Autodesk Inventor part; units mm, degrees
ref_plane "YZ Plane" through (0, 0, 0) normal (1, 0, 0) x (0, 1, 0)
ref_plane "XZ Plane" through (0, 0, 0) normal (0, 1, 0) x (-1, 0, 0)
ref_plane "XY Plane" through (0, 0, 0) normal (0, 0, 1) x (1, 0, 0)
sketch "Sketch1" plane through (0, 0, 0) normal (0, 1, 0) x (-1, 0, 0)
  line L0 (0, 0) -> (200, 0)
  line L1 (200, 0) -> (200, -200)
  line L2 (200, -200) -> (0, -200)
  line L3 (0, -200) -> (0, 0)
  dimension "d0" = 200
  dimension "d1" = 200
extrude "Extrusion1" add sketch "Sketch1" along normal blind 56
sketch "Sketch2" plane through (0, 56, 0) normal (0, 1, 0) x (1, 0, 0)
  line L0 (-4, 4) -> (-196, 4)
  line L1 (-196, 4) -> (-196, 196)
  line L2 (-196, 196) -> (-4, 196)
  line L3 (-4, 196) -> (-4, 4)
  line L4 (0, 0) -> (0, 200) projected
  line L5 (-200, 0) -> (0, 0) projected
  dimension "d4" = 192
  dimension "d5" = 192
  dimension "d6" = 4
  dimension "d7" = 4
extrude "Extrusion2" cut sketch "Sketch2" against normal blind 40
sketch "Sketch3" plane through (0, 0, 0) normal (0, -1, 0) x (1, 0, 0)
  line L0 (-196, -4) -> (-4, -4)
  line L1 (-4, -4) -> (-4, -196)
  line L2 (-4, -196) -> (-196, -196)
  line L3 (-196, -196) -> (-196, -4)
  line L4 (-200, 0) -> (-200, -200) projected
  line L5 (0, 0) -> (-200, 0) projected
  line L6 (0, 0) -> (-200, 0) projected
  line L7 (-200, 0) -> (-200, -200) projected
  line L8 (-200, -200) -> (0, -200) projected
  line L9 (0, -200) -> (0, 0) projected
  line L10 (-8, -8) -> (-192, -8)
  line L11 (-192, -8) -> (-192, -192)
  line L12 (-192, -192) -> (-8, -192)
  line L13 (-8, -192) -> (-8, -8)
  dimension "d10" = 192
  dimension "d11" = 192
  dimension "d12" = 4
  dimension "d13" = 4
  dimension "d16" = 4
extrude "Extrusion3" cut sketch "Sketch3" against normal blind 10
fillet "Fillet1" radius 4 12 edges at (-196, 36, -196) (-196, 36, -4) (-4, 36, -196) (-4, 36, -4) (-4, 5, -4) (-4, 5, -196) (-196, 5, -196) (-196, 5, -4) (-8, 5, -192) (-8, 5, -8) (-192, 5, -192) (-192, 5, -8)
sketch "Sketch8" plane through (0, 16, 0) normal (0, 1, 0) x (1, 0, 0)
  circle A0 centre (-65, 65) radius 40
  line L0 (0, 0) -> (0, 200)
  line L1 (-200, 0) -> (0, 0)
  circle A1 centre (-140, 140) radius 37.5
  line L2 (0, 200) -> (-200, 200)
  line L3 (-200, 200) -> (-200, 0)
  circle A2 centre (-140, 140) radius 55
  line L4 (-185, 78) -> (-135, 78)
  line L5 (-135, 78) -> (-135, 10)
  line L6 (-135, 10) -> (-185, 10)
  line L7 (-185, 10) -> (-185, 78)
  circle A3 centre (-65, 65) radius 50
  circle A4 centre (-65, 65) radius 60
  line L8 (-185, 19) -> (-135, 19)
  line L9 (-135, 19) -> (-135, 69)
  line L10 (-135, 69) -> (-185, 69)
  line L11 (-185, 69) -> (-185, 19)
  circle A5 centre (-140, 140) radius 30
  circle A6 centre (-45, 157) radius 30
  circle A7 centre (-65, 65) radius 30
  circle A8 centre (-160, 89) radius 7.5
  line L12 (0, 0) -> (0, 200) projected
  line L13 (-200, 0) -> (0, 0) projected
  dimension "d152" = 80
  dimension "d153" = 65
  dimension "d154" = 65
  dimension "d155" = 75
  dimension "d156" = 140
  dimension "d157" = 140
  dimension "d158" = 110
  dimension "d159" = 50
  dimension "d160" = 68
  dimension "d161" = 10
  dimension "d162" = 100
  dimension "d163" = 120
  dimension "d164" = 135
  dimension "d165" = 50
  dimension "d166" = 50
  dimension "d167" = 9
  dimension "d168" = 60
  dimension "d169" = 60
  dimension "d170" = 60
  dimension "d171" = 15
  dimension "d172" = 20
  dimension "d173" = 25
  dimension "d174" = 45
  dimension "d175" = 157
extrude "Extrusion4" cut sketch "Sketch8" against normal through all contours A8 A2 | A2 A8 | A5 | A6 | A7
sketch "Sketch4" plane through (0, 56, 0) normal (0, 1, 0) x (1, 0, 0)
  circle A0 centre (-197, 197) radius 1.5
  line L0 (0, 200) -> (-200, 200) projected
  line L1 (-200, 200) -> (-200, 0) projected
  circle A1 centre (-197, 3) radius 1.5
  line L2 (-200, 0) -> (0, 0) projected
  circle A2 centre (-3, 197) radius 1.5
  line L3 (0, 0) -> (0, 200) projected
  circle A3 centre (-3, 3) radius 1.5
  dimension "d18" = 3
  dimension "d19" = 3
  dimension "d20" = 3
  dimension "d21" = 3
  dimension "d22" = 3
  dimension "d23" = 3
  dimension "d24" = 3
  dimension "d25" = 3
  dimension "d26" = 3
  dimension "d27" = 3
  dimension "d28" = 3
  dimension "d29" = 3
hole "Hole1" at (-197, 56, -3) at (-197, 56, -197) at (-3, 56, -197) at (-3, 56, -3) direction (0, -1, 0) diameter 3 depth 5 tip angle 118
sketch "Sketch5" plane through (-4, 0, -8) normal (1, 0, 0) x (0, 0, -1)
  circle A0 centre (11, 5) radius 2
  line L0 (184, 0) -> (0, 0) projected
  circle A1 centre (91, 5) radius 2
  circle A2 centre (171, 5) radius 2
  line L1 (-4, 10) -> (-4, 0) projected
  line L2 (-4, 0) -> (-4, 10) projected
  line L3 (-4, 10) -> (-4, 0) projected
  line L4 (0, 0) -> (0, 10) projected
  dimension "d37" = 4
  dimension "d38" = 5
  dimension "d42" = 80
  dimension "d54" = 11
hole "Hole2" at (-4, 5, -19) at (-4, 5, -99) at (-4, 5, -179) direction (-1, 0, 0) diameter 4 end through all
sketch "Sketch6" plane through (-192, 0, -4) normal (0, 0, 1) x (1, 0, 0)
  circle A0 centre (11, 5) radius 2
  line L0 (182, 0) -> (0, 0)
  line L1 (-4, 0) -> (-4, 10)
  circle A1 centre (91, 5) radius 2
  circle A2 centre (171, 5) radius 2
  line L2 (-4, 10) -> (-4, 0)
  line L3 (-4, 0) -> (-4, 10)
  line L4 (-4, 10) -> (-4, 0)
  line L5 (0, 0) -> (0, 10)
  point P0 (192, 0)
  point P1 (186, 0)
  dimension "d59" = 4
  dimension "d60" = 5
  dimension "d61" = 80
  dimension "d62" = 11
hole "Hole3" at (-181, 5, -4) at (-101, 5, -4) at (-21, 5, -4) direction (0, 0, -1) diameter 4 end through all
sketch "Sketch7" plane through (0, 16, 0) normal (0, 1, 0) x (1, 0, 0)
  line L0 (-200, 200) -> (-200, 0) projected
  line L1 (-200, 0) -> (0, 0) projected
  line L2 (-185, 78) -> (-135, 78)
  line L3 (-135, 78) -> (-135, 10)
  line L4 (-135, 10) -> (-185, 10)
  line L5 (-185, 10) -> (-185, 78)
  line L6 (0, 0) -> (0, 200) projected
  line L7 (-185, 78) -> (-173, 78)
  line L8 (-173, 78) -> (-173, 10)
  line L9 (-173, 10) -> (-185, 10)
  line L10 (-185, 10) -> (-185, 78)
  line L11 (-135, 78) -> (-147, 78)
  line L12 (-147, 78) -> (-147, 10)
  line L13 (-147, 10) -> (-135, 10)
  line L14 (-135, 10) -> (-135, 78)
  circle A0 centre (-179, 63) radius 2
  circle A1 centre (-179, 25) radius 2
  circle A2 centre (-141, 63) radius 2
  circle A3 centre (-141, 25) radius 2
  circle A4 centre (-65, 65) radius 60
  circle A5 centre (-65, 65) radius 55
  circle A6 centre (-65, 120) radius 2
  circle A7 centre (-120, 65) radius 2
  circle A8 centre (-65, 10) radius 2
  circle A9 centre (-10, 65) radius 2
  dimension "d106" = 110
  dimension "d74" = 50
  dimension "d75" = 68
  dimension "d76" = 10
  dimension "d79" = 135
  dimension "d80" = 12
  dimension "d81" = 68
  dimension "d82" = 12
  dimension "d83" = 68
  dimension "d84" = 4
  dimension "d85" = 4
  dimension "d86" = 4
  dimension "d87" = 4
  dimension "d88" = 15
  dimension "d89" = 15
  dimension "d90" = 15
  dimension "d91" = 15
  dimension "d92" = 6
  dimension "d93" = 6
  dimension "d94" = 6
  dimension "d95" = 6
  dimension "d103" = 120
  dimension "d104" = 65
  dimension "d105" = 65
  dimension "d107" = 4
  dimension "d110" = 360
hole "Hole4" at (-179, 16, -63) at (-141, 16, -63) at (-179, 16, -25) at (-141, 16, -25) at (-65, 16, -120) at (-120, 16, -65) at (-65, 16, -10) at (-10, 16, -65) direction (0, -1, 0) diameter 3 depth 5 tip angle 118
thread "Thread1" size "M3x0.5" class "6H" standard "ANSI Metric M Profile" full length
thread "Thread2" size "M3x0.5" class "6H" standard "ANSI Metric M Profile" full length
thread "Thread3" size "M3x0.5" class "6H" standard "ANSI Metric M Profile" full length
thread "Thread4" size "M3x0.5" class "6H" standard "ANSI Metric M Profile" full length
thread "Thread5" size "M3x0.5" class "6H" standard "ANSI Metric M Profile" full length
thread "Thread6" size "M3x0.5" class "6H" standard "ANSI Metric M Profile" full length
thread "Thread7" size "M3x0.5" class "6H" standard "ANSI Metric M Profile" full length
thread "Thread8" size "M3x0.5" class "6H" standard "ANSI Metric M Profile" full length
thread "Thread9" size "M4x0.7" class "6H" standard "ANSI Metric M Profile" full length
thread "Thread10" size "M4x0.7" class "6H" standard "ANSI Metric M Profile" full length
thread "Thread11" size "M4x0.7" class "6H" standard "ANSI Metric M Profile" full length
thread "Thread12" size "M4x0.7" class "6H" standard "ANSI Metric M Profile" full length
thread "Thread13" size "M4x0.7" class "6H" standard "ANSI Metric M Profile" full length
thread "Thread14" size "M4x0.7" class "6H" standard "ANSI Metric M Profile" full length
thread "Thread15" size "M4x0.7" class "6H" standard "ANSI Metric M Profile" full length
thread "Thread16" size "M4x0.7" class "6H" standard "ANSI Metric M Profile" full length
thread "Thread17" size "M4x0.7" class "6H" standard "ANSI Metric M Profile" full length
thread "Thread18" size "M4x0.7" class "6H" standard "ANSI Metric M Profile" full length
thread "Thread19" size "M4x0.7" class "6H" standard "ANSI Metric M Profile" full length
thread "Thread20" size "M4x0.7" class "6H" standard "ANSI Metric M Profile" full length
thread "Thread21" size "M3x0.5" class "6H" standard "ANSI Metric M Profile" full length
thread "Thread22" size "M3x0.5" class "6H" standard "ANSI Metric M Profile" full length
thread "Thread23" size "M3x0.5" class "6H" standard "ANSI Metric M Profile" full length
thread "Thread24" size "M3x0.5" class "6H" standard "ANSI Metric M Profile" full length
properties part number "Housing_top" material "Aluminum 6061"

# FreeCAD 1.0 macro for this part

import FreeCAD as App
import Part
import Sketcher
from FreeCAD import Vector


def edges_at(feature, points):
    """Names of the edges that pass closest to the given points."""
    edges = feature.Shape.Edges
    near = lambda p: min(range(len(edges)), key=lambda i: edges[i].distToShape(Part.Vertex(*p))[0])
    return sorted({f"Edge{near(p) + 1}" for p in points})


def add_polygon(sketch, points):
    """Adds a closed chain of lines whose ends are joined by coincident constraints."""
    first, n = sketch.GeometryCount, len(points)
    for a, b in zip(points, points[1:] + points[:1]):
        sketch.addGeometry(Part.LineSegment(App.Vector(*a, 0), App.Vector(*b, 0)), False)
    for i in range(n):
        sketch.addConstraint(Sketcher.Constraint("Coincident", first + i, 2, first + (i + 1) % n, 1))

doc = App.newDocument("Part")
body = doc.addObject("PartDesign::Body", "Body")

# Sketch on XZ plane
sketch1 = body.newObject("Sketcher::SketchObject", "Sketch")
sketch1.AttachmentSupport = (doc.getObject("XZ_Plane"), [""])
sketch1.MapMode = "FlatFace"
add_polygon(sketch1, [(-200, 0), (0, 0), (0, -200), (-200, -200)])  # lines 0-3
sketch1.addConstraint(Sketcher.Constraint("Horizontal", 0))
sketch1.addConstraint(Sketcher.Constraint("Vertical", 1))
sketch1.addConstraint(Sketcher.Constraint("Horizontal", 2))
sketch1.addConstraint(Sketcher.Constraint("Vertical", 3))
sketch1.addConstraint(Sketcher.Constraint("Coincident", 0, 2, -1, 1))
sketch1.addConstraint(Sketcher.Constraint("Equal", 2, 1))
sketch1.addConstraint(Sketcher.Constraint("DistanceX", 0, 1, 0, 2, 200.0))
pad1 = body.newObject("PartDesign::Pad", "Pad")
pad1.Profile = sketch1
pad1.Length = 56
pad1.Reversed = True

# Sketch on XZ plane
sketch2 = body.newObject("Sketcher::SketchObject", "Sketch001")
sketch2.AttachmentSupport = (doc.getObject("XZ_Plane"), [""])
sketch2.MapMode = "FlatFace"
sketch2.AttachmentOffset = App.Placement(Vector(0, 0, -56), App.Rotation())
add_polygon(sketch2, [(-196, -4), (-4, -4), (-4, -196), (-196, -196)])  # lines 0-3
sketch2.addConstraint(Sketcher.Constraint("Horizontal", 0))
sketch2.addConstraint(Sketcher.Constraint("Vertical", 1))
sketch2.addConstraint(Sketcher.Constraint("Horizontal", 2))
sketch2.addConstraint(Sketcher.Constraint("Vertical", 3))
sketch2.addConstraint(Sketcher.Constraint("Equal", 2, 1))
sketch2.addConstraint(Sketcher.Constraint("DistanceX", 0, 1, 0, 2, 192.0))
sketch2.addConstraint(Sketcher.Constraint("DistanceX", 0, 2, -1, 1, 4.0))
sketch2.addConstraint(Sketcher.Constraint("DistanceY", 0, 2, -1, 1, 4.0))
pocket1 = body.newObject("PartDesign::Pocket", "Pocket")
pocket1.Profile = sketch2
pocket1.Length = 40
pocket1.Reversed = True

# Sketch on XZ plane
sketch3 = body.newObject("Sketcher::SketchObject", "Sketch002")
sketch3.AttachmentSupport = (doc.getObject("XZ_Plane"), [""])
sketch3.MapMode = "FlatFace"
add_polygon(sketch3, [(0, 0), (-200, 0), (-200, -200), (0, -200)])  # lines 0-3
add_polygon(sketch3, [(-196, -196), (-196, -4), (-4, -4), (-4, -196)])  # lines 4-7
add_polygon(sketch3, [(-8, -192), (-8, -8), (-192, -8), (-192, -192)])  # lines 8-11
sketch3.addConstraint(Sketcher.Constraint("Horizontal", 0))
sketch3.addConstraint(Sketcher.Constraint("Vertical", 1))
sketch3.addConstraint(Sketcher.Constraint("Horizontal", 2))
sketch3.addConstraint(Sketcher.Constraint("Vertical", 3))
sketch3.addConstraint(Sketcher.Constraint("Vertical", 4))
sketch3.addConstraint(Sketcher.Constraint("Horizontal", 5))
sketch3.addConstraint(Sketcher.Constraint("Vertical", 6))
sketch3.addConstraint(Sketcher.Constraint("Horizontal", 7))
sketch3.addConstraint(Sketcher.Constraint("Vertical", 8))
sketch3.addConstraint(Sketcher.Constraint("Horizontal", 9))
sketch3.addConstraint(Sketcher.Constraint("Vertical", 10))
sketch3.addConstraint(Sketcher.Constraint("Horizontal", 11))
sketch3.addConstraint(Sketcher.Constraint("Coincident", 3, 2, -1, 1))
sketch3.addConstraint(Sketcher.Constraint("Equal", 2, 1))
sketch3.addConstraint(Sketcher.Constraint("Equal", 7, 4))
sketch3.addConstraint(Sketcher.Constraint("Equal", 11, 8))
sketch3.addConstraint(Sketcher.Constraint("DistanceX", 5, 1, 5, 2, 192.0))
sketch3.addConstraint(Sketcher.Constraint("DistanceY", 4, 2, -1, 1, 4.0))
sketch3.addConstraint(Sketcher.Constraint("DistanceX", 5, 2, -1, 1, 4.0))
sketch3.addConstraint(Sketcher.Constraint("DistanceX", 9, 2, -1, 1, 192.0))
sketch3.addConstraint(Sketcher.Constraint("DistanceY", 10, 2, -1, 1, 192.0))
sketch3.addConstraint(Sketcher.Constraint("DistanceX", 0, 2, 4, 2, 4.0))
sketch3.addConstraint(Sketcher.Constraint("DistanceX", 8, 2, 5, 2, 4.0))
pocket2 = body.newObject("PartDesign::Pocket", "Pocket001")
pocket2.Profile = sketch3
pocket2.Length = 10
doc.recompute()

fillet = body.newObject("PartDesign::Fillet", "Fillet")
fillet.Base = (pocket2, edges_at(pocket2, [
    (-196, 36, -196),
    (-196, 36, -4),
    (-4, 36, -196),
    (-4, 36, -4),
    (-4, 5, -4),
    (-4, 5, -196),
    (-196, 5, -196),
    (-196, 5, -4),
    (-8, 5, -192),
    (-8, 5, -8),
    (-192, 5, -192),
    (-192, 5, -8),
]))
fillet.Radius = 4

# Sketch on XZ plane
sketch4 = body.newObject("Sketcher::SketchObject", "Sketch003")
sketch4.AttachmentSupport = (doc.getObject("XZ_Plane"), [""])
sketch4.MapMode = "FlatFace"
sketch4.AttachmentOffset = App.Placement(Vector(0, 0, -16), App.Rotation())
sketch4.addGeometry(Part.Circle(Vector(-160, -89, 0), Vector(0, 0, 1), 7.5), False)
sketch4.addGeometry(Part.Circle(Vector(-140, -140, 0), Vector(0, 0, 1), 30), False)
sketch4.addGeometry(Part.Circle(Vector(-45, -157, 0), Vector(0, 0, 1), 30), False)
sketch4.addGeometry(Part.Circle(Vector(-65, -65, 0), Vector(0, 0, 1), 30), False)
sketch4.addConstraint(Sketcher.Constraint("Equal", 1, 2))
sketch4.addConstraint(Sketcher.Constraint("Equal", 2, 3))
sketch4.addConstraint(Sketcher.Constraint("Diameter", 0, 15.0))
sketch4.addConstraint(Sketcher.Constraint("Diameter", 1, 60.0))
sketch4.addConstraint(Sketcher.Constraint("DistanceX", 1, 3, -1, 1, 140.0))
sketch4.addConstraint(Sketcher.Constraint("DistanceY", 1, 3, -1, 1, 140.0))
sketch4.addConstraint(Sketcher.Constraint("DistanceX", 2, 3, -1, 1, 45.0))
sketch4.addConstraint(Sketcher.Constraint("DistanceY", 2, 3, -1, 1, 157.0))
sketch4.addConstraint(Sketcher.Constraint("DistanceX", 3, 3, -1, 1, 65.0))
sketch4.addConstraint(Sketcher.Constraint("DistanceY", 3, 3, -1, 1, 65.0))
sketch4.addConstraint(Sketcher.Constraint("DistanceX", 0, 3, 1, 3, 20.0))
sketch4.addConstraint(Sketcher.Constraint("DistanceY", 2, 3, 0, 3, 68.0))
pocket3 = body.newObject("PartDesign::Pocket", "Pocket002")
pocket3.Profile = sketch4
pocket3.Type = "ThroughAll"
pocket3.Reversed = True

# Sketch on XZ plane
sketch5 = body.newObject("Sketcher::SketchObject", "Sketch004")
sketch5.AttachmentSupport = (doc.getObject("XZ_Plane"), [""])
sketch5.MapMode = "FlatFace"
sketch5.AttachmentOffset = App.Placement(Vector(0, 0, -56), App.Rotation())
sketch5.addGeometry(Part.Circle(Vector(-197, -3, 0), Vector(0, 0, 1), 1.5), False)
sketch5.addGeometry(Part.Circle(Vector(-197, -197, 0), Vector(0, 0, 1), 1.5), False)
sketch5.addGeometry(Part.Circle(Vector(-3, -197, 0), Vector(0, 0, 1), 1.5), False)
sketch5.addGeometry(Part.Circle(Vector(-3, -3, 0), Vector(0, 0, 1), 1.5), False)
sketch5.addConstraint(Sketcher.Constraint("Equal", 0, 1))
sketch5.addConstraint(Sketcher.Constraint("Equal", 1, 2))
sketch5.addConstraint(Sketcher.Constraint("Equal", 2, 3))
sketch5.addConstraint(Sketcher.Constraint("Horizontal", 1, 3, 2, 3))
sketch5.addConstraint(Sketcher.Constraint("Horizontal", 0, 3, 3, 3))
sketch5.addConstraint(Sketcher.Constraint("Vertical", 0, 3, 1, 3))
sketch5.addConstraint(Sketcher.Constraint("Vertical", 2, 3, 3, 3))
sketch5.addConstraint(Sketcher.Constraint("Diameter", 0, 3.0))
sketch5.addConstraint(Sketcher.Constraint("DistanceX", 0, 3, -1, 1, 197.0))
sketch5.addConstraint(Sketcher.Constraint("DistanceY", 0, 3, -1, 1, 3.0))
sketch5.addConstraint(Sketcher.Constraint("DistanceY", 1, 3, -1, 1, 197.0))
sketch5.addConstraint(Sketcher.Constraint("DistanceX", 2, 3, -1, 1, 3.0))
doc.recompute()
hole = body.newObject("PartDesign::Hole", "Hole")
hole.Profile = sketch5
hole.ThreadType = "None"
hole.Diameter = 3
hole.DepthType = "Dimension"
hole.Depth = 5
hole.DrillPoint = "Angled"
hole.DrillPointAngle = 118
hole.Reversed = True

# Sketch on YZ plane
sketch6 = body.newObject("Sketcher::SketchObject", "Sketch005")
sketch6.AttachmentSupport = (doc.getObject("YZ_Plane"), [""])
sketch6.MapMode = "FlatFace"
sketch6.AttachmentOffset = App.Placement(Vector(0, 0, -4), App.Rotation())
sketch6.addGeometry(Part.Circle(Vector(5, -19, 0), Vector(0, 0, 1), 2), False)
sketch6.addGeometry(Part.Circle(Vector(5, -99, 0), Vector(0, 0, 1), 2), False)
sketch6.addGeometry(Part.Circle(Vector(5, -179, 0), Vector(0, 0, 1), 2), False)
sketch6.addConstraint(Sketcher.Constraint("Equal", 0, 1))
sketch6.addConstraint(Sketcher.Constraint("Equal", 1, 2))
sketch6.addConstraint(Sketcher.Constraint("Vertical", 0, 3, 1, 3))
sketch6.addConstraint(Sketcher.Constraint("Vertical", 1, 3, 2, 3))
sketch6.addConstraint(Sketcher.Constraint("Diameter", 0, 4.0))
sketch6.addConstraint(Sketcher.Constraint("DistanceX", -1, 1, 0, 3, 5.0))
sketch6.addConstraint(Sketcher.Constraint("DistanceY", 0, 3, -1, 1, 19.0))
sketch6.addConstraint(Sketcher.Constraint("DistanceY", 1, 3, -1, 1, 99.0))
sketch6.addConstraint(Sketcher.Constraint("DistanceY", 2, 3, -1, 1, 179.0))
doc.recompute()
hole2 = body.newObject("PartDesign::Hole", "Hole001")
hole2.Profile = sketch6
hole2.ThreadType = "None"
hole2.Diameter = 4
hole2.DepthType = "ThroughAll"

# Sketch on XY plane
sketch7 = body.newObject("Sketcher::SketchObject", "Sketch006")
sketch7.AttachmentSupport = (doc.getObject("XY_Plane"), [""])
sketch7.MapMode = "FlatFace"
sketch7.AttachmentOffset = App.Placement(Vector(0, 0, -4), App.Rotation())
sketch7.addGeometry(Part.Circle(Vector(-181, 5, 0), Vector(0, 0, 1), 2), False)
sketch7.addGeometry(Part.Circle(Vector(-101, 5, 0), Vector(0, 0, 1), 2), False)
sketch7.addGeometry(Part.Circle(Vector(-21, 5, 0), Vector(0, 0, 1), 2), False)
sketch7.addConstraint(Sketcher.Constraint("Equal", 0, 1))
sketch7.addConstraint(Sketcher.Constraint("Equal", 1, 2))
sketch7.addConstraint(Sketcher.Constraint("Horizontal", 0, 3, 1, 3))
sketch7.addConstraint(Sketcher.Constraint("Horizontal", 1, 3, 2, 3))
sketch7.addConstraint(Sketcher.Constraint("Diameter", 0, 4.0))
sketch7.addConstraint(Sketcher.Constraint("DistanceX", 0, 3, -1, 1, 181.0))
sketch7.addConstraint(Sketcher.Constraint("DistanceY", -1, 1, 0, 3, 5.0))
sketch7.addConstraint(Sketcher.Constraint("DistanceX", 1, 3, -1, 1, 101.0))
sketch7.addConstraint(Sketcher.Constraint("DistanceX", 2, 3, -1, 1, 21.0))
doc.recompute()
hole3 = body.newObject("PartDesign::Hole", "Hole002")
hole3.Profile = sketch7
hole3.ThreadType = "None"
hole3.Diameter = 4
hole3.DepthType = "ThroughAll"

# Sketch on XZ plane
sketch8 = body.newObject("Sketcher::SketchObject", "Sketch007")
sketch8.AttachmentSupport = (doc.getObject("XZ_Plane"), [""])
sketch8.MapMode = "FlatFace"
sketch8.AttachmentOffset = App.Placement(Vector(0, 0, -16), App.Rotation())
sketch8.addGeometry(Part.Circle(Vector(-179, -63, 0), Vector(0, 0, 1), 1.5), False)
sketch8.addGeometry(Part.Circle(Vector(-141, -63, 0), Vector(0, 0, 1), 1.5), False)
sketch8.addGeometry(Part.Circle(Vector(-179, -25, 0), Vector(0, 0, 1), 1.5), False)
sketch8.addGeometry(Part.Circle(Vector(-141, -25, 0), Vector(0, 0, 1), 1.5), False)
sketch8.addGeometry(Part.Circle(Vector(-65, -120, 0), Vector(0, 0, 1), 1.5), False)
sketch8.addGeometry(Part.Circle(Vector(-120, -65, 0), Vector(0, 0, 1), 1.5), False)
sketch8.addGeometry(Part.Circle(Vector(-65, -10, 0), Vector(0, 0, 1), 1.5), False)
sketch8.addGeometry(Part.Circle(Vector(-10, -65, 0), Vector(0, 0, 1), 1.5), False)
sketch8.addConstraint(Sketcher.Constraint("Equal", 0, 1))
sketch8.addConstraint(Sketcher.Constraint("Equal", 1, 2))
sketch8.addConstraint(Sketcher.Constraint("Equal", 2, 3))
sketch8.addConstraint(Sketcher.Constraint("Equal", 3, 4))
sketch8.addConstraint(Sketcher.Constraint("Equal", 4, 5))
sketch8.addConstraint(Sketcher.Constraint("Equal", 5, 6))
sketch8.addConstraint(Sketcher.Constraint("Equal", 6, 7))
sketch8.addConstraint(Sketcher.Constraint("Horizontal", 0, 3, 1, 3))
sketch8.addConstraint(Sketcher.Constraint("Horizontal", 2, 3, 3, 3))
sketch8.addConstraint(Sketcher.Constraint("Horizontal", 5, 3, 7, 3))
sketch8.addConstraint(Sketcher.Constraint("Vertical", 0, 3, 2, 3))
sketch8.addConstraint(Sketcher.Constraint("Vertical", 1, 3, 3, 3))
sketch8.addConstraint(Sketcher.Constraint("Vertical", 4, 3, 6, 3))
sketch8.addConstraint(Sketcher.Constraint("Diameter", 0, 3.0))
sketch8.addConstraint(Sketcher.Constraint("DistanceX", 0, 3, -1, 1, 179.0))
sketch8.addConstraint(Sketcher.Constraint("DistanceY", 0, 3, -1, 1, 63.0))
sketch8.addConstraint(Sketcher.Constraint("DistanceX", 1, 3, -1, 1, 141.0))
sketch8.addConstraint(Sketcher.Constraint("DistanceY", 2, 3, -1, 1, 25.0))
sketch8.addConstraint(Sketcher.Constraint("DistanceX", 4, 3, -1, 1, 65.0))
sketch8.addConstraint(Sketcher.Constraint("DistanceY", 4, 3, -1, 1, 120.0))
sketch8.addConstraint(Sketcher.Constraint("DistanceX", 5, 3, -1, 1, 120.0))
sketch8.addConstraint(Sketcher.Constraint("DistanceY", 5, 3, -1, 1, 65.0))
sketch8.addConstraint(Sketcher.Constraint("DistanceY", 6, 3, -1, 1, 10.0))
sketch8.addConstraint(Sketcher.Constraint("DistanceX", 7, 3, -1, 1, 10.0))
doc.recompute()
hole4 = body.newObject("PartDesign::Hole", "Hole003")
hole4.Profile = sketch8
hole4.ThreadType = "None"
hole4.Diameter = 3
hole4.DepthType = "Dimension"
hole4.Depth = 5
hole4.DrillPoint = "Angled"
hole4.DrillPointAngle = 118
hole4.Reversed = True

doc.recompute()
